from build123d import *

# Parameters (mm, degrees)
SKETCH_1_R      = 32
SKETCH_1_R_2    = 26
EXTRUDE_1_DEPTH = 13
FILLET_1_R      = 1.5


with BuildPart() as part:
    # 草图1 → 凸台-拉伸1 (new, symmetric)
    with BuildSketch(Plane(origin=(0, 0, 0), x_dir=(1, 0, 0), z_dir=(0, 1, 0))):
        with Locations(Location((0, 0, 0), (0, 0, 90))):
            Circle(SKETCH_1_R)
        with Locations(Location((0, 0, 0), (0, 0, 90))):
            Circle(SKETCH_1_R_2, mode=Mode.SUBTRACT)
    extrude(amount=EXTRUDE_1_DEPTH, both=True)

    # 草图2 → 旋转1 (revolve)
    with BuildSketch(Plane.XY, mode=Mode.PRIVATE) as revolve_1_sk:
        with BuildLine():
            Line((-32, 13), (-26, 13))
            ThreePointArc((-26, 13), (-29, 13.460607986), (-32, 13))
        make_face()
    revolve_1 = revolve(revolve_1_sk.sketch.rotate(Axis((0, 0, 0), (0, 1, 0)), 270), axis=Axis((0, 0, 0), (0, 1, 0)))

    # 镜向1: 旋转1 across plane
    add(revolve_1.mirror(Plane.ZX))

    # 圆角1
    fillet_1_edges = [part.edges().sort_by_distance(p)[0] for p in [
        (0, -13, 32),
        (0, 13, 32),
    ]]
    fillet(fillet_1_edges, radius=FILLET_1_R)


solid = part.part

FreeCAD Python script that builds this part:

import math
import FreeCAD as App
import Part
import Sketcher
Q = App.Units.Quantity


def edges_at(feature, points):
    """Names of the edges that pass closest to the given points."""
    edges = feature.Shape.Edges
    near = lambda p: min(range(len(edges)), key=lambda i: edges[i].distToShape(Part.Vertex(*p))[0])
    return sorted({f"Edge{near(p) + 1}" for p in points})

doc = App.newDocument("Part")
body = doc.addObject("PartDesign::Body", "Body")

sketch1 = doc.addObject("Sketcher::SketchObject", "Sketch")
body.addObject(sketch1)
sketch1.AttachmentSupport = (doc.XZ_Plane, [""])
sketch1.MapMode = "FlatFace"
sketch1.addGeometry(Part.Circle(App.Vector(0, 0, 0), App.Vector(0, 0, 1), 32), False)
sketch1.addGeometry(Part.Circle(App.Vector(0, 0, 0), App.Vector(0, 0, 1), 26), False)
sketch1.addConstraint(Sketcher.Constraint("Coincident", 0, 3, -1, 1))
sketch1.addConstraint(Sketcher.Constraint("Coincident", 1, 3, -1, 1))
sketch1.addConstraint(Sketcher.Constraint("Diameter", 0, Q("64 mm")))
sketch1.addConstraint(Sketcher.Constraint("Diameter", 1, Q("52 mm")))
pad1 = doc.addObject("PartDesign::Pad", "Pad")
body.addObject(pad1)
pad1.Profile = sketch1
pad1.Length = 26
pad1.Midplane = True

sketch2 = doc.addObject("Sketcher::SketchObject", "Sketch001")
body.addObject(sketch2)
sketch2.AttachmentSupport = (doc.XY_Plane, [""])
sketch2.MapMode = "FlatFace"
sketch2.addGeometry(Part.LineSegment(App.Vector(-32, 13, 0), App.Vector(-26, 13, 0)), False)
sketch2.addGeometry(Part.ArcOfCircle(Part.Circle(App.Vector(-29, 3, 0), App.Vector(0, 0, 1), 10), math.radians(73), math.radians(107)), False)
sketch2.addConstraint(Sketcher.Constraint("Coincident", 0, 1, 1, 2))
sketch2.addConstraint(Sketcher.Constraint("Coincident", 1, 1, 0, 2))
sketch2.addConstraint(Sketcher.Constraint("Horizontal", 0))
sketch2.addConstraint(Sketcher.Constraint("Radius", 1, Q("10 mm")))
sketch2.addConstraint(Sketcher.Constraint("DistanceX", 0, 1, 0, 2, Q("6 mm")))
sketch2.addConstraint(Sketcher.Constraint("DistanceX", 1, 3, -1, 1, Q("29 mm")))
sketch2.addConstraint(Sketcher.Constraint("DistanceY", -1, 1, 0, 1, Q("13 mm")))
revolution = doc.addObject("PartDesign::Revolution", "Revolution")
body.addObject(revolution)
revolution.Profile = sketch2
revolution.ReferenceAxis = (sketch2, ["V_Axis"])
revolution.Angle = 360
doc.recompute()

mirrored = doc.addObject("PartDesign::Mirrored", "Mirrored")
body.addObject(mirrored)
mirrored.Originals = [revolution]
mirrored.MirrorPlane = (doc.XZ_Plane, [""])
body.Tip = mirrored
doc.recompute()

fillet = doc.addObject("PartDesign::Fillet", "Fillet")
body.addObject(fillet)
fillet.Base = (mirrored, edges_at(mirrored, [(0, -13, 32), (0, 13, 32)]))
fillet.Radius = 1.5

doc.recompute()
